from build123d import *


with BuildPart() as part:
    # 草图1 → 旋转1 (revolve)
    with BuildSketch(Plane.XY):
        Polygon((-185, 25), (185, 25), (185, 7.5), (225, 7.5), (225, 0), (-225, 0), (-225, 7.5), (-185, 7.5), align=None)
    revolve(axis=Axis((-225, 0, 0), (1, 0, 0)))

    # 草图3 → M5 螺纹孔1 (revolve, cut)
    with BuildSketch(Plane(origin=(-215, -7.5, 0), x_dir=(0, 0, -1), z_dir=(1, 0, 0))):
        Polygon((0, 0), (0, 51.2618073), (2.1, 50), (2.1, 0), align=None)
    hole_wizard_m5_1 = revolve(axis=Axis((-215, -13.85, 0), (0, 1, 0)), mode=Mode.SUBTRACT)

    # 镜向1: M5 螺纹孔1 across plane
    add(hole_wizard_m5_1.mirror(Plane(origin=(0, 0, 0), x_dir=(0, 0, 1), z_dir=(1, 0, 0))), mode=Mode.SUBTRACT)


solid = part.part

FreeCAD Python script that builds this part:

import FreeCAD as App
import Part
import Sketcher
Q = App.Units.Quantity

doc = App.newDocument("Part")
body = doc.addObject("PartDesign::Body", "Body")

# Sketch on XY plane
sketch1 = doc.addObject("Sketcher::SketchObject", "Sketch")
body.addObject(sketch1)
sketch1.AttachmentSupport = (doc.XY_Plane, [""])
sketch1.MapMode = "FlatFace"
sketch1.addGeometry(Part.LineSegment(App.Vector(185, 25, 0), App.Vector(-185, 25, 0)), False)
sketch1.addGeometry(Part.LineSegment(App.Vector(-185, 25, 0), App.Vector(-185, 8, 0)), False)
sketch1.addGeometry(Part.LineSegment(App.Vector(-185, 8, 0), App.Vector(-225, 8, 0)), False)
sketch1.addGeometry(Part.LineSegment(App.Vector(-225, 8, 0), App.Vector(-225, 0, 0)), False)
sketch1.addGeometry(Part.LineSegment(App.Vector(-225, 0, 0), App.Vector(225, 0, 0)), False)
sketch1.addGeometry(Part.LineSegment(App.Vector(225, 0, 0), App.Vector(225, 8, 0)), False)
sketch1.addGeometry(Part.LineSegment(App.Vector(225, 8, 0), App.Vector(185, 8, 0)), False)
sketch1.addGeometry(Part.LineSegment(App.Vector(185, 8, 0), App.Vector(185, 25, 0)), False)
sketch1.addConstraint(Sketcher.Constraint("Coincident", 0, 2, 1, 1))
sketch1.addConstraint(Sketcher.Constraint("Coincident", 1, 2, 2, 1))
sketch1.addConstraint(Sketcher.Constraint("Coincident", 2, 2, 3, 1))
sketch1.addConstraint(Sketcher.Constraint("Coincident", 3, 2, 4, 1))
sketch1.addConstraint(Sketcher.Constraint("Coincident", 4, 2, 5, 1))
sketch1.addConstraint(Sketcher.Constraint("Coincident", 5, 2, 6, 1))
sketch1.addConstraint(Sketcher.Constraint("Coincident", 6, 2, 7, 1))
sketch1.addConstraint(Sketcher.Constraint("Coincident", 7, 2, 0, 1))
sketch1.addConstraint(Sketcher.Constraint("Horizontal", 0))
sketch1.addConstraint(Sketcher.Constraint("Vertical", 1))
sketch1.addConstraint(Sketcher.Constraint("Horizontal", 2))
sketch1.addConstraint(Sketcher.Constraint("Vertical", 3))
sketch1.addConstraint(Sketcher.Constraint("Horizontal", 4))
sketch1.addConstraint(Sketcher.Constraint("Vertical", 5))
sketch1.addConstraint(Sketcher.Constraint("Horizontal", 6))
sketch1.addConstraint(Sketcher.Constraint("Vertical", 7))
sketch1.addConstraint(Sketcher.Constraint("Symmetric", 3, 2, 4, 2, -1, 1))
sketch1.addConstraint(Sketcher.Constraint("Symmetric", 1, 2, 6, 2, -2))
sketch1.addConstraint(Sketcher.Constraint("DistanceX", 0, 2, 0, 1, 370.0))
sketch1.addConstraint(Sketcher.Constraint("DistanceX", 2, 2, 2, 1, 40.0))
sketch1.addConstraint(Sketcher.Constraint("DistanceY", 1, 2, 1, 1, 17.5))
sketch1.addConstraint(Sketcher.Constraint("DistanceY", 3, 2, 3, 1, 7.5))
revolution = doc.addObject("PartDesign::Revolution", "Revolution")
body.addObject(revolution)
revolution.Profile = sketch1
revolution.ReferenceAxis = (sketch1, ["H_Axis"])
revolution.Angle = 360

# Sketch on YZ plane
sketch2 = doc.addObject("Sketcher::SketchObject", "Sketch001")
body.addObject(sketch2)
sketch2.AttachmentSupport = (doc.YZ_Plane, [""])
sketch2.MapMode = "FlatFace"
sketch2.AttachmentOffset = App.Placement(App.Vector(0, 0, -215), App.Rotation())
sketch2.addGeometry(Part.LineSegment(App.Vector(43.8, 0, 0), App.Vector(-7.5, 0, 0)), False)
sketch2.addGeometry(Part.LineSegment(App.Vector(-7.5, 0, 0), App.Vector(-7.5, -2.1, 0)), False)
sketch2.addGeometry(Part.LineSegment(App.Vector(-7.5, -2.1, 0), App.Vector(42.5, -2.1, 0)), False)
sketch2.addGeometry(Part.LineSegment(App.Vector(42.5, -2.1, 0), App.Vector(43.8, 0, 0)), False)
sketch2.addConstraint(Sketcher.Constraint("Coincident", 0, 2, 1, 1))
sketch2.addConstraint(Sketcher.Constraint("Coincident", 1, 2, 2, 1))
sketch2.addConstraint(Sketcher.Constraint("Coincident", 2, 2, 3, 1))
sketch2.addConstraint(Sketcher.Constraint("Coincident", 3, 2, 0, 1))
sketch2.addConstraint(Sketcher.Constraint("Horizontal", 0))
sketch2.addConstraint(Sketcher.Constraint("Vertical", 1))
sketch2.addConstraint(Sketcher.Constraint("Horizontal", 2))
sketch2.addConstraint(Sketcher.Constraint("PointOnObject", 0, 2, -1))
sketch2.addConstraint(Sketcher.Constraint("DistanceX", 2, 1, 2, 2, 50.0))
sketch2.addConstraint(Sketcher.Constraint("Angle", 3, Q("59 deg")))
sketch2.addConstraint(Sketcher.Constraint("DistanceY", 1, 2, 1, 1, 2.1))
sketch2.addConstraint(Sketcher.Constraint("DistanceX", 0, 2, -1, 1, 7.5))
groove = doc.addObject("PartDesign::Groove", "Groove")
body.addObject(groove)
groove.Profile = sketch2
groove.ReferenceAxis = (sketch2, ["H_Axis"])
groove.Angle = 360
doc.recompute()

mirrored = doc.addObject("PartDesign::Mirrored", "Mirrored")
body.addObject(mirrored)
mirrored.Originals = [groove]
mirrored.MirrorPlane = (doc.YZ_Plane, [""])
body.Tip = mirrored

doc.recompute()
